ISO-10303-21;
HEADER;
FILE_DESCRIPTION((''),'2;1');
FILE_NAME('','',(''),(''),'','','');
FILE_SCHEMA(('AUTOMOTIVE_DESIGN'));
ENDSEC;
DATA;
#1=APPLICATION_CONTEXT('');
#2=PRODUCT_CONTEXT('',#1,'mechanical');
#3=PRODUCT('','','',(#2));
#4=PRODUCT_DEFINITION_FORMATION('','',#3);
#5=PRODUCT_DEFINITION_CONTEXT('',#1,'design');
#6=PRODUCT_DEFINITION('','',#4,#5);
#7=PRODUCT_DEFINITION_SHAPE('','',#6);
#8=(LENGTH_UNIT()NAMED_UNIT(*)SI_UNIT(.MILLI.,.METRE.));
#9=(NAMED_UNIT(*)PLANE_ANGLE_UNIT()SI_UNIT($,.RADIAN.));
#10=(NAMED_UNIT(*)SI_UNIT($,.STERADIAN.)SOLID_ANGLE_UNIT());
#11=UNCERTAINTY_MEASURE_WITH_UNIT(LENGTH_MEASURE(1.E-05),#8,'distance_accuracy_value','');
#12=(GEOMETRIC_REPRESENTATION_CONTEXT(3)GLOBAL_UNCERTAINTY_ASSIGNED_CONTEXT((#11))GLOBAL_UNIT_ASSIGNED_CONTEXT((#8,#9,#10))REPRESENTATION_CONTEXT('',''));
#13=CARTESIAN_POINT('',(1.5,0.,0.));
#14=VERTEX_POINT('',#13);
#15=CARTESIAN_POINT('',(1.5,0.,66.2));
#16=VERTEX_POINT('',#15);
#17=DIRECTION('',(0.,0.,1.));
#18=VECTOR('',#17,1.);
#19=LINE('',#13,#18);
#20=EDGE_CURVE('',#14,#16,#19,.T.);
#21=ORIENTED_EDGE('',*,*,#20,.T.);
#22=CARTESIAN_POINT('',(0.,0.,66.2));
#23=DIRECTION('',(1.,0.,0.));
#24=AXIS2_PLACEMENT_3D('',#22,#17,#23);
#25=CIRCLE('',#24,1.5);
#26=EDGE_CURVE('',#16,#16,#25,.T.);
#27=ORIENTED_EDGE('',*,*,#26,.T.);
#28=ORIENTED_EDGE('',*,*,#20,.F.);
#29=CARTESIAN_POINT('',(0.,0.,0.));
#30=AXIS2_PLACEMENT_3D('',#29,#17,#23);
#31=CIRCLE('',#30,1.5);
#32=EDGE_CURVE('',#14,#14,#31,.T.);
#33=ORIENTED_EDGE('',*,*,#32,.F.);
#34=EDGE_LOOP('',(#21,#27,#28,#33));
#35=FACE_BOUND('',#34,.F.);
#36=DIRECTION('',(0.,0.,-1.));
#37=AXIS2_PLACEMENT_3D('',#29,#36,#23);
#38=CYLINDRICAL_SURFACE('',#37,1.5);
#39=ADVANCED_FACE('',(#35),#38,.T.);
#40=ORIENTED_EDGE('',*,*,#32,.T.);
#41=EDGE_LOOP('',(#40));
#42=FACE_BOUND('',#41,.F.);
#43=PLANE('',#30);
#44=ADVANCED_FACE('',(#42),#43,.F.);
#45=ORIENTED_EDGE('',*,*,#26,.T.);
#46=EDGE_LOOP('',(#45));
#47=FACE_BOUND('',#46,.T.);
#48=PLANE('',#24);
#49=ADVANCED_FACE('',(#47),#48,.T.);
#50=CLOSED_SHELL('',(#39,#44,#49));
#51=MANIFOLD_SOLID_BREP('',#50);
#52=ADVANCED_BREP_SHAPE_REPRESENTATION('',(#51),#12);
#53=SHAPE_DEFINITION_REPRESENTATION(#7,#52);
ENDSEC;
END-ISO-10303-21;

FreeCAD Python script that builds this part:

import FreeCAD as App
import Part
import Sketcher
Q = App.Units.Quantity

doc = App.newDocument("Part")
body = doc.addObject("PartDesign::Body", "Body")

sketch1 = body.newObject("Sketcher::SketchObject", "Sketch")
sketch1.AttachmentSupport = (doc.getObject("XY_Plane"), [""])
sketch1.MapMode = "FlatFace"
sketch1.addGeometry(Part.Circle(App.Vector(0, 0, 0), App.Vector(0, 0, 1), 1.5), False)
sketch1.addConstraint(Sketcher.Constraint("Coincident", 0, 3, -1, 1))
sketch1.addConstraint(Sketcher.Constraint("Diameter", 0, Q("3 mm")))
pad1 = body.newObject("PartDesign::Pad", "Pad")
pad1.Profile = sketch1
pad1.Length = 66.2

doc.recompute()
